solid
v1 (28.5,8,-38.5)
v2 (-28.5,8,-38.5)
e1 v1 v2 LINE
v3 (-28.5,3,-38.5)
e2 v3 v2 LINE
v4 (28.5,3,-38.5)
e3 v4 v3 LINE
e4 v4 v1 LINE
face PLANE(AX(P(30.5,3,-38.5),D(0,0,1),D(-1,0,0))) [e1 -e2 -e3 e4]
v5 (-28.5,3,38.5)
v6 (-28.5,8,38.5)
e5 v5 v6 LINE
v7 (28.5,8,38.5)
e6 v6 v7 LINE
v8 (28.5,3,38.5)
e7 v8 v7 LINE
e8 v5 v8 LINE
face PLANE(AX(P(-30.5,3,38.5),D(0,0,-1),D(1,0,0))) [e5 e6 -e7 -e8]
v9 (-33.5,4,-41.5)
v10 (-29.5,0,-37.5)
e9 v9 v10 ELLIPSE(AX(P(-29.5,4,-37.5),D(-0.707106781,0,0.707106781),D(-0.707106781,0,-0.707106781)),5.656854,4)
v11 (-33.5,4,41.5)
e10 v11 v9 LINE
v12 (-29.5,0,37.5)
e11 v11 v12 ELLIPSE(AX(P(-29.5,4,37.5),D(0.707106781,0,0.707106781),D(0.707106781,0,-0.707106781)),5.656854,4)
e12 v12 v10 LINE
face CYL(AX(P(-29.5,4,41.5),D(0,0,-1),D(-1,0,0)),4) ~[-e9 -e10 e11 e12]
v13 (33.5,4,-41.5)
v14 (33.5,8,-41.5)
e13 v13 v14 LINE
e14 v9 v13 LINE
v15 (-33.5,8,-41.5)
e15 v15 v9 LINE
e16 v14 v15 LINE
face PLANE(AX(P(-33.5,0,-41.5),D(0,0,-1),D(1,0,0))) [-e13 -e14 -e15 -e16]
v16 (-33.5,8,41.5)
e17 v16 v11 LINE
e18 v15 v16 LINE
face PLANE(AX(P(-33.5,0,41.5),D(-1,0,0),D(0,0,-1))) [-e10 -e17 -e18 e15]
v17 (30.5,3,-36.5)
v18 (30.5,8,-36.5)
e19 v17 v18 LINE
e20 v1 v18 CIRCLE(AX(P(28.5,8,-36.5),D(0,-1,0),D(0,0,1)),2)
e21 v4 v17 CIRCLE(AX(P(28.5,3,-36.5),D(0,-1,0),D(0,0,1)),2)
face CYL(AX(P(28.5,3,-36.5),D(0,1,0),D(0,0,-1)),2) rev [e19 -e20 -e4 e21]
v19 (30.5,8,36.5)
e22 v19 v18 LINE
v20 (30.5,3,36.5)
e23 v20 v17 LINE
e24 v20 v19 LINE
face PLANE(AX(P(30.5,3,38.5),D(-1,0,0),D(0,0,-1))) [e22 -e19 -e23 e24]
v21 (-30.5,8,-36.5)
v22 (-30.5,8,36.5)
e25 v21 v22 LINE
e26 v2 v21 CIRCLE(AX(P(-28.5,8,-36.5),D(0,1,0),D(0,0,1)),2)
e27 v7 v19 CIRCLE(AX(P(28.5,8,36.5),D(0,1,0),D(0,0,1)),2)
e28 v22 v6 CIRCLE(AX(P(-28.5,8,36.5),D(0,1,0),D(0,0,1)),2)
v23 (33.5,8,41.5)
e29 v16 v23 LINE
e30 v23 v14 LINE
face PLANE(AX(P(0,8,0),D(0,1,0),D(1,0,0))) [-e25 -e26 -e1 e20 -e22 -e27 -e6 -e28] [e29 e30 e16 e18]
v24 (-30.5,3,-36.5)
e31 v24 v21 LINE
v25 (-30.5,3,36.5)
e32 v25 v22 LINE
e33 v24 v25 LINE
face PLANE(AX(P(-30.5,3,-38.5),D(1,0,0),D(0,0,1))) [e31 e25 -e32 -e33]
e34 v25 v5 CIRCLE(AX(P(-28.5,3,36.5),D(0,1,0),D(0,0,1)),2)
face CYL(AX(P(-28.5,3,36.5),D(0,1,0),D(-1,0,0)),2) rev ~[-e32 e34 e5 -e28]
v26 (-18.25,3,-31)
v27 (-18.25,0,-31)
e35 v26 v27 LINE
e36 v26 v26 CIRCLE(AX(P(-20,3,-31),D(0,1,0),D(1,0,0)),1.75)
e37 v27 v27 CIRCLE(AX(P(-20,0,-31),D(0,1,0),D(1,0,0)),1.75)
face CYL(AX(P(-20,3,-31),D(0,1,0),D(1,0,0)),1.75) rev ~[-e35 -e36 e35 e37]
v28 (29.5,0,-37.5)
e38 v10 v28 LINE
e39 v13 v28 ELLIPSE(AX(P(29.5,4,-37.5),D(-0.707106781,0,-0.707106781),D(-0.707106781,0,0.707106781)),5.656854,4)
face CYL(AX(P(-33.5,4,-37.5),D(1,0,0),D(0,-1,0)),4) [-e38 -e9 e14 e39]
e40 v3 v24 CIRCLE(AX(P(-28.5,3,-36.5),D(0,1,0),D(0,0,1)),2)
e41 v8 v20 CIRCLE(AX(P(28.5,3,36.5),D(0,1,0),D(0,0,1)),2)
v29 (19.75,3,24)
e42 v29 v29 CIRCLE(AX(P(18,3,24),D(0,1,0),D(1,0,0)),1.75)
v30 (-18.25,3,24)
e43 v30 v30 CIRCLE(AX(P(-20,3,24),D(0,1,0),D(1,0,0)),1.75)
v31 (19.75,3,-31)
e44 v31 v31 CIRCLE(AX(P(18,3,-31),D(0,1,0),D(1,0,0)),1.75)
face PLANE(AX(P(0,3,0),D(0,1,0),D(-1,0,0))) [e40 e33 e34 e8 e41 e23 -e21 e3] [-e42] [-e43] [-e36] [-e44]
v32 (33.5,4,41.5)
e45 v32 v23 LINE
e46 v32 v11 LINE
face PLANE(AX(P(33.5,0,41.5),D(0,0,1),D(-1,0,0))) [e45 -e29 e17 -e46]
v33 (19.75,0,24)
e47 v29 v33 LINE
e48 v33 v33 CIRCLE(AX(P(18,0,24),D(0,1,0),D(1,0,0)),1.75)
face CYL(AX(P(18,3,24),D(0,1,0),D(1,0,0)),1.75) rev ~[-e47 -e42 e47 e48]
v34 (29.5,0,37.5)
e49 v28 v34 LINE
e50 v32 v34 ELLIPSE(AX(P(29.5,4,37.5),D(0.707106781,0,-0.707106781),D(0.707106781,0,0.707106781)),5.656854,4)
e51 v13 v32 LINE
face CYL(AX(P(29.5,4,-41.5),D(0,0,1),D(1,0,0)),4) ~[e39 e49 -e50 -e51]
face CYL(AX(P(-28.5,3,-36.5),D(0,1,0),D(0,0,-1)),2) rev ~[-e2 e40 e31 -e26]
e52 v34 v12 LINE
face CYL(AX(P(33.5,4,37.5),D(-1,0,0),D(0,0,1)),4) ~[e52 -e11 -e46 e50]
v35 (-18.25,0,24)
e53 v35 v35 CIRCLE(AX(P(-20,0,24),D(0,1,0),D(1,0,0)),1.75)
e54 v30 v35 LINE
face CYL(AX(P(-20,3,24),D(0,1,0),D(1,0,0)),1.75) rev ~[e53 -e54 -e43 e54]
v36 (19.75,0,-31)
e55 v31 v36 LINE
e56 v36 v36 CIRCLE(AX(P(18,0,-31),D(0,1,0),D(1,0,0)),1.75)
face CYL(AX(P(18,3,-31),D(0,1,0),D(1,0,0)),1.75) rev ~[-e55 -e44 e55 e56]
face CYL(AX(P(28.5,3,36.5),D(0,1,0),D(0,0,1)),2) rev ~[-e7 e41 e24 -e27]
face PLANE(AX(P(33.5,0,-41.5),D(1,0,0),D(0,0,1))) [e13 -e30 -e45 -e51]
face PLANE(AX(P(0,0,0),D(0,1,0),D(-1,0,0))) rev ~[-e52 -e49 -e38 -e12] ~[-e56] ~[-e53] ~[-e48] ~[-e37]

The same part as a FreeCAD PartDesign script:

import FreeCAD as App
import Part
import Sketcher


def edges_at(feature, points):
    """Names of the edges that pass closest to the given points."""
    edges = feature.Shape.Edges
    near = lambda p: min(range(len(edges)), key=lambda i: edges[i].distToShape(Part.Vertex(*p))[0])
    return sorted({f"Edge{near(p) + 1}" for p in points})


def add_polygon(sketch, points):
    """Adds a closed chain of lines whose ends are joined by coincident constraints."""
    first, n = sketch.GeometryCount, len(points)
    for a, b in zip(points, points[1:] + points[:1]):
        sketch.addGeometry(Part.LineSegment(App.Vector(*a, 0), App.Vector(*b, 0)), False)
    for i in range(n):
        sketch.addConstraint(Sketcher.Constraint("Coincident", first + i, 2, first + (i + 1) % n, 1))

doc = App.newDocument("Part")
body = doc.addObject("PartDesign::Body", "Body")

# Sketch on XZ plane
sketch1 = body.newObject("Sketcher::SketchObject", "Sketch")
sketch1.AttachmentSupport = (doc.getObject("XZ_Plane"), [""])
sketch1.MapMode = "FlatFace"
add_polygon(sketch1, [(-34, 42), (34, 42), (34, -42), (-34, -42)])  # lines 0-3
sketch1.addConstraint(Sketcher.Constraint("Horizontal", 0))
sketch1.addConstraint(Sketcher.Constraint("Vertical", 1))
sketch1.addConstraint(Sketcher.Constraint("Horizontal", 2))
sketch1.addConstraint(Sketcher.Constraint("Vertical", 3))
sketch1.addConstraint(Sketcher.Constraint("Symmetric", 0, 2, 2, 2, -1, 1))
sketch1.addConstraint(Sketcher.Constraint("DistanceX", 0, 1, 0, 2, 67.0))
sketch1.addConstraint(Sketcher.Constraint("DistanceY", 1, 2, 1, 1, 83.0))
pad1 = body.newObject("PartDesign::Pad", "Pad")
pad1.Profile = sketch1
pad1.Length = 3
pad1.Reversed = True

# Sketch on XZ plane
sketch2 = body.newObject("Sketcher::SketchObject", "Sketch001")
sketch2.AttachmentSupport = (doc.getObject("XZ_Plane"), [""])
sketch2.MapMode = "FlatFace"
sketch2.AttachmentOffset = App.Placement(App.Vector(0, 0, -3), App.Rotation())
add_polygon(sketch2, [(34, -42), (-34, -42), (-34, 42), (34, 42)])  # lines 0-3
add_polygon(sketch2, [(-30, -38), (30, -38), (30, 38), (-30, 38)])  # lines 4-7
sketch2.addConstraint(Sketcher.Constraint("Horizontal", 0))
sketch2.addConstraint(Sketcher.Constraint("Vertical", 1))
sketch2.addConstraint(Sketcher.Constraint("Horizontal", 2))
sketch2.addConstraint(Sketcher.Constraint("Vertical", 3))
sketch2.addConstraint(Sketcher.Constraint("Horizontal", 4))
sketch2.addConstraint(Sketcher.Constraint("Vertical", 5))
sketch2.addConstraint(Sketcher.Constraint("Horizontal", 6))
sketch2.addConstraint(Sketcher.Constraint("Vertical", 7))
sketch2.addConstraint(Sketcher.Constraint("Symmetric", 0, 2, 2, 2, -1, 1))
sketch2.addConstraint(Sketcher.Constraint("Symmetric", 4, 2, 6, 2, -1, 1))
sketch2.addConstraint(Sketcher.Constraint("DistanceX", 4, 1, 4, 2, 61.0))
sketch2.addConstraint(Sketcher.Constraint("DistanceY", 5, 1, 5, 2, 77.0))
sketch2.addConstraint(Sketcher.Constraint("DistanceX", 0, 2, 0, 1, 67.0))
sketch2.addConstraint(Sketcher.Constraint("DistanceY", 1, 1, 1, 2, 83.0))
pad2 = body.newObject("PartDesign::Pad", "Pad001")
pad2.Profile = sketch2
pad2.Length = 5
pad2.Reversed = True

# Sketch on XZ plane
sketch3 = body.newObject("Sketcher::SketchObject", "Sketch002")
sketch3.AttachmentSupport = (doc.getObject("XZ_Plane"), [""])
sketch3.MapMode = "FlatFace"
sketch3.AttachmentOffset = App.Placement(App.Vector(0, 0, -3), App.Rotation())
sketch3.addGeometry(Part.Circle(App.Vector(18, -31, 0), App.Vector(0, 0, 1), 1.8), False)
sketch3.addGeometry(Part.Circle(App.Vector(18, 24, 0), App.Vector(0, 0, 1), 1.8), False)
sketch3.addGeometry(Part.Circle(App.Vector(-20, -31, 0), App.Vector(0, 0, 1), 1.8), False)
sketch3.addGeometry(Part.Circle(App.Vector(-20, 24, 0), App.Vector(0, 0, 1), 1.8), False)
sketch3.addConstraint(Sketcher.Constraint("Equal", 0, 1))
sketch3.addConstraint(Sketcher.Constraint("Equal", 1, 2))
sketch3.addConstraint(Sketcher.Constraint("Equal", 2, 3))
sketch3.addConstraint(Sketcher.Constraint("Horizontal", 0, 3, 2, 3))
sketch3.addConstraint(Sketcher.Constraint("Horizontal", 1, 3, 3, 3))
sketch3.addConstraint(Sketcher.Constraint("Vertical", 0, 3, 1, 3))
sketch3.addConstraint(Sketcher.Constraint("Vertical", 2, 3, 3, 3))
sketch3.addConstraint(Sketcher.Constraint("Diameter", 0, 3.5))
sketch3.addConstraint(Sketcher.Constraint("DistanceY", 0, 3, 1, 3, 55.0))
sketch3.addConstraint(Sketcher.Constraint("DistanceX", 2, 3, 0, 3, 38.0))
sketch3.addConstraint(Sketcher.Constraint("DistanceX", -1, 1, 0, 3, 18.0))
sketch3.addConstraint(Sketcher.Constraint("DistanceY", 0, 3, -1, 1, 31.0))
pocket1 = body.newObject("PartDesign::Pocket", "Pocket")
pocket1.Profile = sketch3
pocket1.Length = 5
pocket1.Reversed = True
doc.recompute()

fillet = body.newObject("PartDesign::Fillet", "Fillet")
fillet.Base = (pocket1, edges_at(pocket1, [
    (33.5, 0, 0),
    (-33.5, 0, 0),
    (0, 0, 41.5),
    (0, 0, -41.5),
]))
fillet.Radius = 4
doc.recompute()

fillet2 = body.newObject("PartDesign::Fillet", "Fillet001")
fillet2.Base = (fillet, edges_at(fillet, [
    (-30.5, 5.5, -38.5),
    (30.5, 5.5, -38.5),
    (30.5, 5.5, 38.5),
    (-30.5, 5.5, 38.5),
]))
fillet2.Radius = 2

doc.recompute()
